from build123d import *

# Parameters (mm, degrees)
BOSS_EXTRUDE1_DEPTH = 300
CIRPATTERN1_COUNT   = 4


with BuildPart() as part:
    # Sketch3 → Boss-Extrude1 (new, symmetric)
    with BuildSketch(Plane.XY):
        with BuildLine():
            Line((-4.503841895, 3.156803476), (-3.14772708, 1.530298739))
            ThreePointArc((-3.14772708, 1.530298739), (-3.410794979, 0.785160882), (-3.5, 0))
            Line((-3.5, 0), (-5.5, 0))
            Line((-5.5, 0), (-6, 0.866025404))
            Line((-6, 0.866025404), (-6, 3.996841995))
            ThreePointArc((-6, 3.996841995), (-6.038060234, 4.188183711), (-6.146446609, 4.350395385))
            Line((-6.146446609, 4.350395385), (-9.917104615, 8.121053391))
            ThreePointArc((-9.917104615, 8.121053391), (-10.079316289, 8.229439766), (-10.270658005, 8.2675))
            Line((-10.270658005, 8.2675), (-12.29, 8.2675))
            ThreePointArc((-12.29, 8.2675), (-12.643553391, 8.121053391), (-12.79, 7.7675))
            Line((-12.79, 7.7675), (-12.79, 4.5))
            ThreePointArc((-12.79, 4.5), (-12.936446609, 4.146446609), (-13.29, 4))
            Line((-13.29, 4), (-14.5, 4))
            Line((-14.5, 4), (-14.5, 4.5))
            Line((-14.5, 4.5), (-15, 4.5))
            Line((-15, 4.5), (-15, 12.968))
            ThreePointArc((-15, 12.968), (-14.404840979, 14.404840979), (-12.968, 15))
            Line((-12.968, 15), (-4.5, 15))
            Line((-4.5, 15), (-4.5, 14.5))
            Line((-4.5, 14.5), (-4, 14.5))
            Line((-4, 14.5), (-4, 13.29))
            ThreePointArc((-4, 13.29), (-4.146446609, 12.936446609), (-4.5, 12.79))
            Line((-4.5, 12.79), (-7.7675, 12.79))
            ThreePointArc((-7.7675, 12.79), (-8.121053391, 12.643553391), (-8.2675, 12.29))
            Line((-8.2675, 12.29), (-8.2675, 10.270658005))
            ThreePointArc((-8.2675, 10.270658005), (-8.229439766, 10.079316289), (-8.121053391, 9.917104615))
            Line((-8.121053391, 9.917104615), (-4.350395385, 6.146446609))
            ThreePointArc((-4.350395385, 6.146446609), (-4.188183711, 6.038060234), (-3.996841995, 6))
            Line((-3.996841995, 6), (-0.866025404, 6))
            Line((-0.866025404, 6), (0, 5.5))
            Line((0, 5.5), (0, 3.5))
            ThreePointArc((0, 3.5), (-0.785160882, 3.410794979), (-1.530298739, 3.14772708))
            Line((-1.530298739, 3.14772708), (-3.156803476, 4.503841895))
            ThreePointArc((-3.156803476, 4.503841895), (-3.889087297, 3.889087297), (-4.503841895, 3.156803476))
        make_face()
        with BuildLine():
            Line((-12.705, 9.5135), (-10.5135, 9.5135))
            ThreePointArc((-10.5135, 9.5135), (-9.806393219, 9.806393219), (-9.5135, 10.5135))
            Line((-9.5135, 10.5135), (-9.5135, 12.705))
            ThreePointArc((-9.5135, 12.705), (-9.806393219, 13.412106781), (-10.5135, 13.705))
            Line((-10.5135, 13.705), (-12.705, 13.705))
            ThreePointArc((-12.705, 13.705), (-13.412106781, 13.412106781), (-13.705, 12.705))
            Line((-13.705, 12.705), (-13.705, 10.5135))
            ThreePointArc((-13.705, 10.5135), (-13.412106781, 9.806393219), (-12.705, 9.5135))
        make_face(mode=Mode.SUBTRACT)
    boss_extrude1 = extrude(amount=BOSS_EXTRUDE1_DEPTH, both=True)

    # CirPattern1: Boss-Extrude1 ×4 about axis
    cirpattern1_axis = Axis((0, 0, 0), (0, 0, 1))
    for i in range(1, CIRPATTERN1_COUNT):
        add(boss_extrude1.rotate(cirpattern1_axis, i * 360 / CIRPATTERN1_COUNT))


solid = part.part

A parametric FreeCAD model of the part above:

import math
import FreeCAD as App
import Part
import Sketcher
from FreeCAD import Vector
Q = App.Units.Quantity

doc = App.newDocument("Part")
body = doc.addObject("PartDesign::Body", "Body")

# Sketch on XY plane
sketch1 = body.newObject("Sketcher::SketchObject", "Sketch")
sketch1.AttachmentSupport = (doc.getObject("XY_Plane"), [""])
sketch1.MapMode = "FlatFace"
sketch1.addGeometry(Part.LineSegment(Vector(-3.147727, 1.530299, 0), Vector(-4.503842, 3.156803, 0)), False)
sketch1.addGeometry(Part.ArcOfCircle(Part.Circle(Vector(0, 0, 0), Vector(0, 0, 1), 5.5), math.radians(125.027131), math.radians(144.972869)), False)
sketch1.addGeometry(Part.LineSegment(Vector(-3.156803, 4.503842, 0), Vector(-1.530299, 3.147727, 0)), False)
sketch1.addGeometry(Part.ArcOfCircle(Part.Circle(Vector(0, 0, 0), Vector(0, 0, 1), 3.5), math.radians(90), math.radians(115.927163)), False)
sketch1.addGeometry(Part.LineSegment(Vector(0, 3.5, 0), Vector(0, 5.5, 0)), False)
sketch1.addGeometry(Part.LineSegment(Vector(0, 5.5, 0), Vector(-0.866025, 6, 0)), False)
sketch1.addGeometry(Part.LineSegment(Vector(-0.866025, 6, 0), Vector(-3.996842, 6, 0)), False)
sketch1.addGeometry(Part.ArcOfCircle(Part.Circle(Vector(-3.996842, 6.5, 0), Vector(0, 0, 1), 0.5), math.radians(-135), math.radians(-90)), False)
sketch1.addGeometry(Part.LineSegment(Vector(-4.350395, 6.146447, 0), Vector(-8.121053, 9.917105, 0)), False)
sketch1.addGeometry(Part.ArcOfCircle(Part.Circle(Vector(-7.7675, 10.270658, 0), Vector(0, 0, 1), 0.5), math.radians(-180), math.radians(-135)), False)
sketch1.addGeometry(Part.LineSegment(Vector(-8.2675, 10.270658, 0), Vector(-8.2675, 12.29, 0)), False)
sketch1.addGeometry(Part.ArcOfCircle(Part.Circle(Vector(-7.7675, 12.29, 0), Vector(0, 0, 1), 0.5), math.radians(90), math.radians(180)), False)
sketch1.addGeometry(Part.LineSegment(Vector(-7.7675, 12.79, 0), Vector(-4.5, 12.79, 0)), False)
sketch1.addGeometry(Part.ArcOfCircle(Part.Circle(Vector(-4.5, 13.29, 0), Vector(0, 0, 1), 0.5), math.radians(-90), math.radians(0)), False)
sketch1.addGeometry(Part.LineSegment(Vector(-4, 13.29, 0), Vector(-4, 14.5, 0)), False)
sketch1.addGeometry(Part.LineSegment(Vector(-4, 14.5, 0), Vector(-4.5, 14.5, 0)), False)
sketch1.addGeometry(Part.LineSegment(Vector(-4.5, 14.5, 0), Vector(-4.5, 15, 0)), False)
sketch1.addGeometry(Part.LineSegment(Vector(-4.5, 15, 0), Vector(-12.968, 15, 0)), False)
sketch1.addGeometry(Part.ArcOfCircle(Part.Circle(Vector(-12.968, 12.968, 0), Vector(0, 0, 1), 2.032), math.radians(90), math.radians(180)), False)
sketch1.addGeometry(Part.LineSegment(Vector(-15, 12.968, 0), Vector(-15, 4.5, 0)), False)
sketch1.addGeometry(Part.LineSegment(Vector(-15, 4.5, 0), Vector(-14.5, 4.5, 0)), False)
sketch1.addGeometry(Part.LineSegment(Vector(-14.5, 4.5, 0), Vector(-14.5, 4, 0)), False)
sketch1.addGeometry(Part.LineSegment(Vector(-14.5, 4, 0), Vector(-13.29, 4, 0)), False)
sketch1.addGeometry(Part.ArcOfCircle(Part.Circle(Vector(-13.29, 4.5, 0), Vector(0, 0, 1), 0.5), math.radians(-90), math.radians(0)), False)
sketch1.addGeometry(Part.LineSegment(Vector(-12.79, 4.5, 0), Vector(-12.79, 7.7675, 0)), False)
sketch1.addGeometry(Part.ArcOfCircle(Part.Circle(Vector(-12.29, 7.7675, 0), Vector(0, 0, 1), 0.5), math.radians(90), math.radians(180)), False)
sketch1.addGeometry(Part.LineSegment(Vector(-12.29, 8.2675, 0), Vector(-10.270658, 8.2675, 0)), False)
sketch1.addGeometry(Part.ArcOfCircle(Part.Circle(Vector(-10.270658, 7.7675, 0), Vector(0, 0, 1), 0.5), math.radians(45), math.radians(90)), False)
sketch1.addGeometry(Part.LineSegment(Vector(-9.917105, 8.121053, 0), Vector(-6.146447, 4.350395, 0)), False)
sketch1.addGeometry(Part.ArcOfCircle(Part.Circle(Vector(-6.5, 3.996842, 0), Vector(0, 0, 1), 0.5), math.radians(0), math.radians(45)), False)
sketch1.addGeometry(Part.LineSegment(Vector(-6, 3.996842, 0), Vector(-6, 0.866025, 0)), False)
sketch1.addGeometry(Part.LineSegment(Vector(-6, 0.866025, 0), Vector(-5.5, 0, 0)), False)
sketch1.addGeometry(Part.LineSegment(Vector(-5.5, 0, 0), Vector(-3.5, 0, 0)), False)
sketch1.addGeometry(Part.ArcOfCircle(Part.Circle(Vector(0, 0, 0), Vector(0, 0, 1), 3.5), math.radians(154.072837), math.radians(180)), False)
sketch1.addGeometry(Part.ArcOfCircle(Part.Circle(Vector(-12.705, 10.5135, 0), Vector(0, 0, 1), 1), math.radians(-180), math.radians(-90)), False)
sketch1.addGeometry(Part.LineSegment(Vector(-13.705, 10.5135, 0), Vector(-13.705, 12.705, 0)), False)
sketch1.addGeometry(Part.ArcOfCircle(Part.Circle(Vector(-12.705, 12.705, 0), Vector(0, 0, 1), 1), math.radians(90), math.radians(180)), False)
sketch1.addGeometry(Part.LineSegment(Vector(-12.705, 13.705, 0), Vector(-10.5135, 13.705, 0)), False)
sketch1.addGeometry(Part.ArcOfCircle(Part.Circle(Vector(-10.5135, 12.705, 0), Vector(0, 0, 1), 1), math.radians(0), math.radians(90)), False)
sketch1.addGeometry(Part.LineSegment(Vector(-9.5135, 12.705, 0), Vector(-9.5135, 10.5135, 0)), False)
sketch1.addGeometry(Part.ArcOfCircle(Part.Circle(Vector(-10.5135, 10.5135, 0), Vector(0, 0, 1), 1), math.radians(-90), math.radians(0)), False)
sketch1.addGeometry(Part.LineSegment(Vector(-10.5135, 9.5135, 0), Vector(-12.705, 9.5135, 0)), False)
sketch1.addConstraint(Sketcher.Constraint("Coincident", 0, 2, 1, 2))
sketch1.addConstraint(Sketcher.Constraint("Coincident", 1, 1, 2, 1))
sketch1.addConstraint(Sketcher.Constraint("Coincident", 2, 2, 3, 2))
sketch1.addConstraint(Sketcher.Constraint("Coincident", 3, 1, 4, 1))
sketch1.addConstraint(Sketcher.Constraint("Coincident", 4, 2, 5, 1))
sketch1.addConstraint(Sketcher.Constraint("Coincident", 5, 2, 6, 1))
sketch1.addConstraint(Sketcher.Constraint("Tangent", 6, 2, 7, 2))
sketch1.addConstraint(Sketcher.Constraint("Tangent", 7, 1, 8, 1))
sketch1.addConstraint(Sketcher.Constraint("Tangent", 8, 2, 9, 2))
sketch1.addConstraint(Sketcher.Constraint("Tangent", 9, 1, 10, 1))
sketch1.addConstraint(Sketcher.Constraint("Tangent", 10, 2, 11, 2))
sketch1.addConstraint(Sketcher.Constraint("Tangent", 11, 1, 12, 1))
sketch1.addConstraint(Sketcher.Constraint("Tangent", 12, 2, 13, 1))
sketch1.addConstraint(Sketcher.Constraint("Tangent", 13, 2, 14, 1))
sketch1.addConstraint(Sketcher.Constraint("Coincident", 14, 2, 15, 1))
sketch1.addConstraint(Sketcher.Constraint("Coincident", 15, 2, 16, 1))
sketch1.addConstraint(Sketcher.Constraint("Coincident", 16, 2, 17, 1))
sketch1.addConstraint(Sketcher.Constraint("Tangent", 17, 2, 18, 1))
sketch1.addConstraint(Sketcher.Constraint("Tangent", 18, 2, 19, 1))
sketch1.addConstraint(Sketcher.Constraint("Coincident", 19, 2, 20, 1))
sketch1.addConstraint(Sketcher.Constraint("Coincident", 20, 2, 21, 1))
sketch1.addConstraint(Sketcher.Constraint("Coincident", 21, 2, 22, 1))
sketch1.addConstraint(Sketcher.Constraint("Tangent", 22, 2, 23, 1))
sketch1.addConstraint(Sketcher.Constraint("Tangent", 23, 2, 24, 1))
sketch1.addConstraint(Sketcher.Constraint("Tangent", 24, 2, 25, 2))
sketch1.addConstraint(Sketcher.Constraint("Tangent", 25, 1, 26, 1))
sketch1.addConstraint(Sketcher.Constraint("Tangent", 26, 2, 27, 2))
sketch1.addConstraint(Sketcher.Constraint("Tangent", 27, 1, 28, 1))
sketch1.addConstraint(Sketcher.Constraint("Tangent", 28, 2, 29, 2))
sketch1.addConstraint(Sketcher.Constraint("Tangent", 29, 1, 30, 1))
sketch1.addConstraint(Sketcher.Constraint("Coincident", 30, 2, 31, 1))
sketch1.addConstraint(Sketcher.Constraint("Coincident", 31, 2, 32, 1))
sketch1.addConstraint(Sketcher.Constraint("Coincident", 32, 2, 33, 2))
sketch1.addConstraint(Sketcher.Constraint("Coincident", 33, 1, 0, 1))
sketch1.addConstraint(Sketcher.Constraint("Tangent", 34, 1, 35, 1))
sketch1.addConstraint(Sketcher.Constraint("Tangent", 35, 2, 36, 2))
sketch1.addConstraint(Sketcher.Constraint("Tangent", 36, 1, 37, 1))
sketch1.addConstraint(Sketcher.Constraint("Tangent", 37, 2, 38, 2))
sketch1.addConstraint(Sketcher.Constraint("Tangent", 38, 1, 39, 1))
sketch1.addConstraint(Sketcher.Constraint("Tangent", 39, 2, 40, 2))
sketch1.addConstraint(Sketcher.Constraint("Tangent", 40, 1, 41, 1))
sketch1.addConstraint(Sketcher.Constraint("Tangent", 41, 2, 34, 2))
sketch1.addConstraint(Sketcher.Constraint("Vertical", 4))
sketch1.addConstraint(Sketcher.Constraint("Horizontal", 6))
sketch1.addConstraint(Sketcher.Constraint("Vertical", 10))
sketch1.addConstraint(Sketcher.Constraint("Horizontal", 12))
sketch1.addConstraint(Sketcher.Constraint("Vertical", 14))
sketch1.addConstraint(Sketcher.Constraint("Horizontal", 15))
sketch1.addConstraint(Sketcher.Constraint("Vertical", 16))
sketch1.addConstraint(Sketcher.Constraint("Horizontal", 17))
sketch1.addConstraint(Sketcher.Constraint("Vertical", 19))
sketch1.addConstraint(Sketcher.Constraint("Horizontal", 20))
sketch1.addConstraint(Sketcher.Constraint("Vertical", 21))
sketch1.addConstraint(Sketcher.Constraint("Horizontal", 22))
sketch1.addConstraint(Sketcher.Constraint("Vertical", 24))
sketch1.addConstraint(Sketcher.Constraint("Horizontal", 26))
sketch1.addConstraint(Sketcher.Constraint("Vertical", 30))
sketch1.addConstraint(Sketcher.Constraint("Horizontal", 32))
sketch1.addConstraint(Sketcher.Constraint("Vertical", 35))
sketch1.addConstraint(Sketcher.Constraint("Horizontal", 37))
sketch1.addConstraint(Sketcher.Constraint("Vertical", 39))
sketch1.addConstraint(Sketcher.Constraint("Horizontal", 41))
sketch1.addConstraint(Sketcher.Constraint("Coincident", 1, 3, -1, 1))
sketch1.addConstraint(Sketcher.Constraint("Coincident", 3, 3, -1, 1))
sketch1.addConstraint(Sketcher.Constraint("Coincident", 33, 3, -1, 1))
sketch1.addConstraint(Sketcher.Constraint("Equal", 7, 9))
sketch1.addConstraint(Sketcher.Constraint("Equal", 9, 11))
sketch1.addConstraint(Sketcher.Constraint("Equal", 11, 13))
sketch1.addConstraint(Sketcher.Constraint("Equal", 13, 23))
sketch1.addConstraint(Sketcher.Constraint("Equal", 23, 25))
sketch1.addConstraint(Sketcher.Constraint("Equal", 25, 27))
sketch1.addConstraint(Sketcher.Constraint("Equal", 27, 29))
sketch1.addConstraint(Sketcher.Constraint("Equal", 3, 33))
sketch1.addConstraint(Sketcher.Constraint("Equal", 34, 36))
sketch1.addConstraint(Sketcher.Constraint("Equal", 36, 38))
sketch1.addConstraint(Sketcher.Constraint("Equal", 38, 40))
sketch1.addConstraint(Sketcher.Constraint("PointOnObject", 3, 1, -2))
sketch1.addConstraint(Sketcher.Constraint("PointOnObject", 31, 2, -1))
sketch1.addConstraint(Sketcher.Constraint("Parallel", 8, 28))
sketch1.addConstraint(Sketcher.Constraint("Horizontal", 23, 3, 19, 2))
sketch1.addConstraint(Sketcher.Constraint("Vertical", 12, 2, 15, 2))
sketch1.addConstraint(Sketcher.Constraint("Equal", 15, 20))
sketch1.addConstraint(Sketcher.Constraint("Equal", 32, 4))
sketch1.addConstraint(Sketcher.Constraint("Equal", 26, 10))
sketch1.addConstraint(Sketcher.Constraint("Equal", 22, 14))
sketch1.addConstraint(Sketcher.Constraint("Equal", 20, 16))
sketch1.addConstraint(Sketcher.Constraint("Equal", 17, 19))
sketch1.addConstraint(Sketcher.Constraint("Equal", 12, 24))
sketch1.addConstraint(Sketcher.Constraint("Equal", 6, 30))
sketch1.addConstraint(Sketcher.Constraint("Equal", 41, 35))
sketch1.addConstraint(Sketcher.Constraint("Equal", 0, 2))
sketch1.addConstraint(Sketcher.Constraint("Equal", 8, 28))
sketch1.addConstraint(Sketcher.Constraint("Equal", 5, 31))
sketch1.addConstraint(Sketcher.Constraint("Radius", 34, 1.0))
sketch1.addConstraint(Sketcher.Constraint("Radius", 1, 5.5))
sketch1.addConstraint(Sketcher.Constraint("Radius", 3, 3.5))
sketch1.addConstraint(Sketcher.Constraint("Radius", 7, 0.5))
sketch1.addConstraint(Sketcher.Constraint("DistanceX", 32, 1, 32, 2, 2.0))
sketch1.addConstraint(Sketcher.Constraint("Angle", 5, Q("150 deg")))
sketch1.addConstraint(Sketcher.Constraint("Angle", 8, Q("135 deg")))
sketch1.addConstraint(Sketcher.Constraint("Distance", 5, 1.0))
sketch1.addConstraint(Sketcher.Constraint("DistanceX", 13, 2, -1, 1, 4.0))
sketch1.addConstraint(Sketcher.Constraint("DistanceY", -1, 1, 16, 2, 15.0))
sketch1.addConstraint(Sketcher.Constraint("Radius", 18, 2.032))
sketch1.addConstraint(Sketcher.Constraint("DistanceX", 22, 1, 22, 2, 1.21))
sketch1.addConstraint(Sketcher.Constraint("Angle", 0, Q("129.82 deg")))
sketch1.addConstraint(Sketcher.Constraint("Angle", 2, Q("-39.82 deg")))
sketch1.addConstraint(Sketcher.Constraint("DistanceX", 12, 1, 12, 2, 3.2675))
sketch1.addConstraint(Sketcher.Constraint("DistanceX", 37, 1, 37, 2, 2.1915))
sketch1.addConstraint(Sketcher.Constraint("DistanceX", 34, 3, -1, 1, 12.705))
sketch1.addConstraint(Sketcher.Constraint("DistanceY", -1, 1, 36, 3, 12.705))
sketch1.addConstraint(Sketcher.Constraint("DistanceX", 0, 2, 7, 3, 0.507))
sketch1.addConstraint(Sketcher.Constraint("DistanceX", 26, 1, 26, 2, 2.019342))
pad1 = body.newObject("PartDesign::Pad", "Pad")
pad1.Profile = sketch1
pad1.Length = 600
pad1.Midplane = True
doc.recompute()

polarpattern = body.newObject("PartDesign::PolarPattern", "PolarPattern")
polarpattern.Originals = [pad1]
polarpattern.Axis = (doc.getObject("Z_Axis"), [""])
polarpattern.Angle = 360
polarpattern.Occurrences = 4
body.Tip = polarpattern

doc.recompute()
